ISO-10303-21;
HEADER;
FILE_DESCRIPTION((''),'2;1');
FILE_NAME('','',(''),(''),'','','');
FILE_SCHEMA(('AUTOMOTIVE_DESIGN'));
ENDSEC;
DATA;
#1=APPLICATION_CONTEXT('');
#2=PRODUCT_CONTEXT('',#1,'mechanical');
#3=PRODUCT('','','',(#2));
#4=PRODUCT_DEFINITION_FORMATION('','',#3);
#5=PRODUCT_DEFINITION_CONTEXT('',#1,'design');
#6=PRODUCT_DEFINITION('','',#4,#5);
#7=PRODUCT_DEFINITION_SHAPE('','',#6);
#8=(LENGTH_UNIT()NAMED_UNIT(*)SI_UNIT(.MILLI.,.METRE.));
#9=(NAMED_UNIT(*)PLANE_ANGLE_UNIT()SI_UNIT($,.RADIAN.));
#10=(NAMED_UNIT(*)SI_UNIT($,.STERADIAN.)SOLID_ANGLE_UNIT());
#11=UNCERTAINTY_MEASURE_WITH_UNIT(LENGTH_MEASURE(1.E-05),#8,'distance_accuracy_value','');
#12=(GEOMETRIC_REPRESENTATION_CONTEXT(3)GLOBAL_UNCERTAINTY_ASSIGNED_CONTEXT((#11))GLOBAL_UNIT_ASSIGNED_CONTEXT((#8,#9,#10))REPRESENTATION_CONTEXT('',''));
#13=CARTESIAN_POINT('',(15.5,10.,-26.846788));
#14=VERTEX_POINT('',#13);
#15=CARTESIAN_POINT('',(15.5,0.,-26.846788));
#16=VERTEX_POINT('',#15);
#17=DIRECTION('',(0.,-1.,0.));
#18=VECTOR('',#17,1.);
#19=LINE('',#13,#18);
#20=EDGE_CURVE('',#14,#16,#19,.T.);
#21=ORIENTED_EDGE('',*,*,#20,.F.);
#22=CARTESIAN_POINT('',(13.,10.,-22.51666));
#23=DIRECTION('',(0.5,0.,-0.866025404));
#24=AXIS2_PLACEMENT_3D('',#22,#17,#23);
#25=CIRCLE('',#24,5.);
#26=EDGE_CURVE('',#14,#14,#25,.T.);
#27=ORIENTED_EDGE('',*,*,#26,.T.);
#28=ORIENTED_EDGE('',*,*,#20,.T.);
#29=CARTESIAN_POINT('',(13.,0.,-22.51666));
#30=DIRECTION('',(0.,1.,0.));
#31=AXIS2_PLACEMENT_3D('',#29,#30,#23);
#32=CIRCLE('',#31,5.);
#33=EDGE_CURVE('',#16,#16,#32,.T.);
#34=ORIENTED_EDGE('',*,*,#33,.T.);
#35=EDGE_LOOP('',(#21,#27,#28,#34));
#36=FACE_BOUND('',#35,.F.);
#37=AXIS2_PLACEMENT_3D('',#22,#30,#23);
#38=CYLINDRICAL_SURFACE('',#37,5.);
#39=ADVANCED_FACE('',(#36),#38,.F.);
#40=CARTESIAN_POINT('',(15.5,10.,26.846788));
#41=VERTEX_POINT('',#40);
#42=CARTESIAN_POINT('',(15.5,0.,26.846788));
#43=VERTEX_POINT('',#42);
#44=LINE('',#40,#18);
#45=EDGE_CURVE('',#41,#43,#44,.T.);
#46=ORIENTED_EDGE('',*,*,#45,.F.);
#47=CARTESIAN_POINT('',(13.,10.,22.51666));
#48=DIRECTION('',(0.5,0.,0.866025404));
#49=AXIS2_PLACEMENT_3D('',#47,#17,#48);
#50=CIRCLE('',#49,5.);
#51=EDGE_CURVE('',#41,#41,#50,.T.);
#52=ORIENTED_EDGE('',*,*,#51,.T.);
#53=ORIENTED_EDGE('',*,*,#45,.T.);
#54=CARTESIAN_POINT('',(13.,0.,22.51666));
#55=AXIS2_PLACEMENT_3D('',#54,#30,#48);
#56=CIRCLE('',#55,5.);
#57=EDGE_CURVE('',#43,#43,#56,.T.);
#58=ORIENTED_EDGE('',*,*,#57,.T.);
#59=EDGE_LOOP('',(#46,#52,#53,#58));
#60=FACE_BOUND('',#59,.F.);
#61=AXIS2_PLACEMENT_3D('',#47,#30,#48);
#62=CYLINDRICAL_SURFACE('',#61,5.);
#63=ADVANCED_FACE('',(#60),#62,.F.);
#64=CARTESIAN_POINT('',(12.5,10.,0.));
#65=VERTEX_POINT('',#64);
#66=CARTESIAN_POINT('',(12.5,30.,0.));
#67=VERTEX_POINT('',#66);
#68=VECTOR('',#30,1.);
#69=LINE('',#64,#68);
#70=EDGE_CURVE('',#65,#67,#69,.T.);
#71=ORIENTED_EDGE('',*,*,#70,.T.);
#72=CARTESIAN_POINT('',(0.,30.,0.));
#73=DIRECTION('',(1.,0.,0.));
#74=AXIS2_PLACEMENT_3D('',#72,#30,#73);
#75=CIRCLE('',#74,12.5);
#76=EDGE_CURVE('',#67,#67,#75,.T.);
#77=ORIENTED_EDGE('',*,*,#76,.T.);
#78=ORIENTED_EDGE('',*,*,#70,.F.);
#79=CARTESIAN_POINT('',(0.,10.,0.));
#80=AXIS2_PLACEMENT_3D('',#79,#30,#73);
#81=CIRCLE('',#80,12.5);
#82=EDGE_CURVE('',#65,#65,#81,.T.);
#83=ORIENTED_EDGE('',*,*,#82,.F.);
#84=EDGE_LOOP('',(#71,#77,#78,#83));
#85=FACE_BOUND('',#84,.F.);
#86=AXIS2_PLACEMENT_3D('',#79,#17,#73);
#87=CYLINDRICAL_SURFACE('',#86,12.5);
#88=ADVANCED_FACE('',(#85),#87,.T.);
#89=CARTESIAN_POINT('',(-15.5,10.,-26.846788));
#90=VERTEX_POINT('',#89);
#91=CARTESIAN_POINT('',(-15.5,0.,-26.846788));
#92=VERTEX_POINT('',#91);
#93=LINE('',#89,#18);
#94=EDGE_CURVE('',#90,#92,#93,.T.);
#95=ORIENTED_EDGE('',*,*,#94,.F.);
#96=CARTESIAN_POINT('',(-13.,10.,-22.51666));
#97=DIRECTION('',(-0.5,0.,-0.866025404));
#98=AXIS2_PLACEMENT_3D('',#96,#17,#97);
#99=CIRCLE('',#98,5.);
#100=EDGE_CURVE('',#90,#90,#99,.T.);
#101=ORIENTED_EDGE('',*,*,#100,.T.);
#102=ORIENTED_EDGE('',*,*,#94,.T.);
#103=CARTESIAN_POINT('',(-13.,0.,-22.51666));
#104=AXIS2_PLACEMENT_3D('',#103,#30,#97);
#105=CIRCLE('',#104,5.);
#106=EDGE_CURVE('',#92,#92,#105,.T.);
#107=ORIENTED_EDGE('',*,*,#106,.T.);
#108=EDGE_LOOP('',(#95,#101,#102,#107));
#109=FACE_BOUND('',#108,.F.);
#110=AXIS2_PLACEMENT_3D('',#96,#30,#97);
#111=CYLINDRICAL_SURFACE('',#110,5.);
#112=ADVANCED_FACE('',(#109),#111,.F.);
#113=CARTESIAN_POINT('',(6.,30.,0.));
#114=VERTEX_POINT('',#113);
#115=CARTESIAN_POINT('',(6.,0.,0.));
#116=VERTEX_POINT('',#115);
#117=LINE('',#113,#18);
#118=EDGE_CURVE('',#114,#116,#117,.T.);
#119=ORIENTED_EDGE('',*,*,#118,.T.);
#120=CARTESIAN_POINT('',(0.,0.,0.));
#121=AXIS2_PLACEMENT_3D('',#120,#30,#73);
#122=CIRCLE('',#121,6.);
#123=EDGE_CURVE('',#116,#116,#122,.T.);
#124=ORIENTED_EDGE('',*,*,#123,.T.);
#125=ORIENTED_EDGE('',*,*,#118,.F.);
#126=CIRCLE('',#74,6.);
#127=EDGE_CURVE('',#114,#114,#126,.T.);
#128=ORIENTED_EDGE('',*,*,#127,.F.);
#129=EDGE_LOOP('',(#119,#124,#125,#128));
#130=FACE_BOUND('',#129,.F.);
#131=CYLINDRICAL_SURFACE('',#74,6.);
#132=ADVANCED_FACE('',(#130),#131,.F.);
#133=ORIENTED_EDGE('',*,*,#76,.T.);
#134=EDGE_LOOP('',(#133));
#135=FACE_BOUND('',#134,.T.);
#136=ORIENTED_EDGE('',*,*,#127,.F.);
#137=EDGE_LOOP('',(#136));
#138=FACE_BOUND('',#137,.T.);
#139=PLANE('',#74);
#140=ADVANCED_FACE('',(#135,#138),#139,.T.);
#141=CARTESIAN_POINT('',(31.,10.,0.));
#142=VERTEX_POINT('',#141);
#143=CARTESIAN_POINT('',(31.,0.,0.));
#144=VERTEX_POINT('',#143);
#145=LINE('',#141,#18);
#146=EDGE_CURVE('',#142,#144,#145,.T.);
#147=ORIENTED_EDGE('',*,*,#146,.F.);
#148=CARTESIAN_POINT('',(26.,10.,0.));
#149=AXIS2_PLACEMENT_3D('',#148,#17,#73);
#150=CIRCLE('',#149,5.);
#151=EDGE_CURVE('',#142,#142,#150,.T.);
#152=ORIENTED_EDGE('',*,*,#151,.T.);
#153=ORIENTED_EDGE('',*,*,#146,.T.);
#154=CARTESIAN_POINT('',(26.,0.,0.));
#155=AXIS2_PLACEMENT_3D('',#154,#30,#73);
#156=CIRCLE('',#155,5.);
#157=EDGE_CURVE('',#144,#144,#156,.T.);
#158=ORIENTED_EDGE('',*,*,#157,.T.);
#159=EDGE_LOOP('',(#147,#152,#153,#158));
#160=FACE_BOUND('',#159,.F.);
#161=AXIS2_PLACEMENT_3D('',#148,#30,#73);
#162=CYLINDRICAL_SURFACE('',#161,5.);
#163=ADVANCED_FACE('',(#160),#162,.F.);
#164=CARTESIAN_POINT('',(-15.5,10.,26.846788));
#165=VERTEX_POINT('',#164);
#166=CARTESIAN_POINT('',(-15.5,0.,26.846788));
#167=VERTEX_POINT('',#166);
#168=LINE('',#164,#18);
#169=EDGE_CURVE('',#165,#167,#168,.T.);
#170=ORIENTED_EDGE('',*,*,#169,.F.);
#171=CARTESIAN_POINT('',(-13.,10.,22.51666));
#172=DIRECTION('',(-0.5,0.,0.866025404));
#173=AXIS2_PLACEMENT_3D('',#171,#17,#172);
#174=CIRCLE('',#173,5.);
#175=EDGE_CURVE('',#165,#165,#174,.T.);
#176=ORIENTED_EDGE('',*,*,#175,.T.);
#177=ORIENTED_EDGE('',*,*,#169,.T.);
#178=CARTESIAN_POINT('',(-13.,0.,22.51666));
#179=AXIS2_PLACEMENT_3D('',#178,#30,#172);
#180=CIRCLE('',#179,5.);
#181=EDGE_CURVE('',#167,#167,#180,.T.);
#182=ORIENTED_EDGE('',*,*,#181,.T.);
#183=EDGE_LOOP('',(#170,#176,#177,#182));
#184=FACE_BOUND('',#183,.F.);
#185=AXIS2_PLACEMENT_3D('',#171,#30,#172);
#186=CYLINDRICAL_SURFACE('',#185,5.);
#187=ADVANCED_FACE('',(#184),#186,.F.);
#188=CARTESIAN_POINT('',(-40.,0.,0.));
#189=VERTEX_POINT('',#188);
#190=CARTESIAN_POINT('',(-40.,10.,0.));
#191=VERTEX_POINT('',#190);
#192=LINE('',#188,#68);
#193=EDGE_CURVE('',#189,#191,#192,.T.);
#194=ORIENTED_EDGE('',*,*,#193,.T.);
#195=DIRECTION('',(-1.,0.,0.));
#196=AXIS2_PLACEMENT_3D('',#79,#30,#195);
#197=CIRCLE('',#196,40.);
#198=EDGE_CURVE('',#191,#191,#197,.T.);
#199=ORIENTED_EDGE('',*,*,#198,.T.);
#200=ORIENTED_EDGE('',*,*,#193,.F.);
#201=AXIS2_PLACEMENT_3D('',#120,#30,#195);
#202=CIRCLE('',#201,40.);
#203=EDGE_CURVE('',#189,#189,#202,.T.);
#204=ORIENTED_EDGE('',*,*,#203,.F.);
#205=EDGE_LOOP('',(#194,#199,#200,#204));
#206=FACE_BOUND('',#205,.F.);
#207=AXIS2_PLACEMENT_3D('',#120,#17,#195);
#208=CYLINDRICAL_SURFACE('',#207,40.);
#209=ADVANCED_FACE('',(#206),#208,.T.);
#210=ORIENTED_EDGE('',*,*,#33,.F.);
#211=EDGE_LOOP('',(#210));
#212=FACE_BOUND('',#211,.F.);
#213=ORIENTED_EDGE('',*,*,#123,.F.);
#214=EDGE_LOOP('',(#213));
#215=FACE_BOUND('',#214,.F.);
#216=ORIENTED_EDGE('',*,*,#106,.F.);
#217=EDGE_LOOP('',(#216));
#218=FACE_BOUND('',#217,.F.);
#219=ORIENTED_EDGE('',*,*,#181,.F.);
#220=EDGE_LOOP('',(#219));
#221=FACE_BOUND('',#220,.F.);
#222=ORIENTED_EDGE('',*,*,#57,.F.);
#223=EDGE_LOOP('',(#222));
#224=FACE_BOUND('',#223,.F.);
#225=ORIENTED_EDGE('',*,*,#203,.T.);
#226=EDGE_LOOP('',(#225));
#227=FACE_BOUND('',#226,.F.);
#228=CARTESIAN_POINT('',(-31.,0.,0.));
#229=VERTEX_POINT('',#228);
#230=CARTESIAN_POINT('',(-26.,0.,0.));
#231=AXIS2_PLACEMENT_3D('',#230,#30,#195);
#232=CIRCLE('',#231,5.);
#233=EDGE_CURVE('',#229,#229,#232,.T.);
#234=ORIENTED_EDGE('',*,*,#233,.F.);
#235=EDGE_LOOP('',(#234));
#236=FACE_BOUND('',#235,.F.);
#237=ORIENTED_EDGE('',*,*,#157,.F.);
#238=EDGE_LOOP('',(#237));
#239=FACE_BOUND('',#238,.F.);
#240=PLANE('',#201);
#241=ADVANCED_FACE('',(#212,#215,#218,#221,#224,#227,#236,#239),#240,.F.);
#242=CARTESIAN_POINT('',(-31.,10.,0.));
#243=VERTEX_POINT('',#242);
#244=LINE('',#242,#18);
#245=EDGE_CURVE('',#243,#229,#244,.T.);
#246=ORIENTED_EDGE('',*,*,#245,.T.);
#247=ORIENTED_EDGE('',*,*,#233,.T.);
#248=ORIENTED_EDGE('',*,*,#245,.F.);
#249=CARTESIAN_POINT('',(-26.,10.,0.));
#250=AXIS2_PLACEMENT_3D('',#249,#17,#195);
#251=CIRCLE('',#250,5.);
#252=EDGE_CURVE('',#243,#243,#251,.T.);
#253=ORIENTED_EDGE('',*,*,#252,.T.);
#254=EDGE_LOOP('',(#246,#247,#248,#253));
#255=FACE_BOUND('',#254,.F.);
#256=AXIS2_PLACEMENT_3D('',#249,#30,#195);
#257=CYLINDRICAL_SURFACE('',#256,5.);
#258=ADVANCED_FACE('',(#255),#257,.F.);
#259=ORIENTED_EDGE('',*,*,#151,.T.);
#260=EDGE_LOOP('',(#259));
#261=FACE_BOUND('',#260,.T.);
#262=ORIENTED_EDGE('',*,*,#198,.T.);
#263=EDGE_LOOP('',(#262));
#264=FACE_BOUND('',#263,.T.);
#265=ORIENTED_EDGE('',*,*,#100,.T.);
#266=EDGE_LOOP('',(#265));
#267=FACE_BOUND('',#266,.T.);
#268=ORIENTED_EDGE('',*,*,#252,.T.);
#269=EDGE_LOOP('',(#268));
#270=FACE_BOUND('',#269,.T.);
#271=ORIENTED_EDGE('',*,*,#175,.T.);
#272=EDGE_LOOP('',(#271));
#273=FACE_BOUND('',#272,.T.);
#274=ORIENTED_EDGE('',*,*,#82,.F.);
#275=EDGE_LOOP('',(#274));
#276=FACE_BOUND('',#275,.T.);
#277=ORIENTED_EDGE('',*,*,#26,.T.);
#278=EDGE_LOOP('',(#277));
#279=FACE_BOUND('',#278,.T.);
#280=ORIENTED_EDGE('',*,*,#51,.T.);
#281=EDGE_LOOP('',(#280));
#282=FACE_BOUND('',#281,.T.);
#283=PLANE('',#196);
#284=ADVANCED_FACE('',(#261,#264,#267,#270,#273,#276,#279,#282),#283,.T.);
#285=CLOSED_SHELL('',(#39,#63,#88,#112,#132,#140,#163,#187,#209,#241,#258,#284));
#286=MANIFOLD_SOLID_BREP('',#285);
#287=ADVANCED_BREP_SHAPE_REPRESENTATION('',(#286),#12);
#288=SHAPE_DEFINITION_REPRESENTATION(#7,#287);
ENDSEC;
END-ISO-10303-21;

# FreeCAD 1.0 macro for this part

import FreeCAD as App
import Part
import Sketcher
Q = App.Units.Quantity

doc = App.newDocument("Part")
body = doc.addObject("PartDesign::Body", "Body")

sketch1 = body.newObject("Sketcher::SketchObject", "Sketch")
sketch1.AttachmentSupport = (doc.getObject("XZ_Plane"), [""])
sketch1.MapMode = "FlatFace"
sketch1.addGeometry(Part.Circle(App.Vector(0, 0, 0), App.Vector(0, 0, 1), 40), False)
sketch1.addConstraint([
    Sketcher.Constraint("Coincident", 0, 3, -1, 1),
    Sketcher.Constraint("Diameter", 0, Q("80 mm")),
])
pad1 = body.newObject("PartDesign::Pad", "Pad")
pad1.Profile = sketch1
pad1.Length = 10
pad1.Reversed = True

sketch2 = body.newObject("Sketcher::SketchObject", "Sketch001")
sketch2.AttachmentSupport = (doc.getObject("XZ_Plane"), [""])
sketch2.MapMode = "FlatFace"
sketch2.AttachmentOffset = App.Placement(App.Vector(0, 0, -10), App.Rotation())
sketch2.addGeometry(Part.Circle(App.Vector(0, 0, 0), App.Vector(0, 0, 1), 12), False)
sketch2.addConstraint([
    Sketcher.Constraint("Coincident", 0, 3, -1, 1),
    Sketcher.Constraint("Diameter", 0, Q("25 mm")),
])
pad2 = body.newObject("PartDesign::Pad", "Pad001")
pad2.Profile = sketch2
pad2.Length = 20
pad2.Reversed = True

sketch3 = body.newObject("Sketcher::SketchObject", "Sketch002")
sketch3.AttachmentSupport = (doc.getObject("XZ_Plane"), [""])
sketch3.MapMode = "FlatFace"
sketch3.AttachmentOffset = App.Placement(App.Vector(0, 0, -30), App.Rotation())
sketch3.addGeometry(Part.Circle(App.Vector(0, 0, 0), App.Vector(0, 0, 1), 6), False)
sketch3.addConstraint([
    Sketcher.Constraint("Coincident", 0, 3, -1, 1),
    Sketcher.Constraint("Diameter", 0, Q("12 mm")),
])
pocket1 = body.newObject("PartDesign::Pocket", "Pocket")
pocket1.Profile = sketch3
pocket1.Length = 60
pocket1.Reversed = True

sketch4 = body.newObject("Sketcher::SketchObject", "Sketch003")
sketch4.AttachmentSupport = (doc.getObject("XZ_Plane"), [""])
sketch4.MapMode = "FlatFace"
sketch4.AttachmentOffset = App.Placement(App.Vector(0, 0, -10), App.Rotation())
sketch4.addGeometry(Part.Circle(App.Vector(26, 0, 0), App.Vector(0, 0, 1), 5), False)
sketch4.addConstraint([
    Sketcher.Constraint("PointOnObject", 0, 3, -1),
    Sketcher.Constraint("Diameter", 0, Q("10 mm")),
    Sketcher.Constraint("DistanceX", -1, 1, 0, 3, Q("26 mm")),
])
pocket2 = body.newObject("PartDesign::Pocket", "Pocket001")
pocket2.Profile = sketch4
pocket2.Length = 60
pocket2.Reversed = True
doc.recompute()

polarpattern = body.newObject("PartDesign::PolarPattern", "PolarPattern")
polarpattern.Originals = [pocket2]
polarpattern.Axis = (doc.getObject("Y_Axis"), [""])
polarpattern.Angle = 360
polarpattern.Occurrences = 6
body.Tip = polarpattern

doc.recompute()
